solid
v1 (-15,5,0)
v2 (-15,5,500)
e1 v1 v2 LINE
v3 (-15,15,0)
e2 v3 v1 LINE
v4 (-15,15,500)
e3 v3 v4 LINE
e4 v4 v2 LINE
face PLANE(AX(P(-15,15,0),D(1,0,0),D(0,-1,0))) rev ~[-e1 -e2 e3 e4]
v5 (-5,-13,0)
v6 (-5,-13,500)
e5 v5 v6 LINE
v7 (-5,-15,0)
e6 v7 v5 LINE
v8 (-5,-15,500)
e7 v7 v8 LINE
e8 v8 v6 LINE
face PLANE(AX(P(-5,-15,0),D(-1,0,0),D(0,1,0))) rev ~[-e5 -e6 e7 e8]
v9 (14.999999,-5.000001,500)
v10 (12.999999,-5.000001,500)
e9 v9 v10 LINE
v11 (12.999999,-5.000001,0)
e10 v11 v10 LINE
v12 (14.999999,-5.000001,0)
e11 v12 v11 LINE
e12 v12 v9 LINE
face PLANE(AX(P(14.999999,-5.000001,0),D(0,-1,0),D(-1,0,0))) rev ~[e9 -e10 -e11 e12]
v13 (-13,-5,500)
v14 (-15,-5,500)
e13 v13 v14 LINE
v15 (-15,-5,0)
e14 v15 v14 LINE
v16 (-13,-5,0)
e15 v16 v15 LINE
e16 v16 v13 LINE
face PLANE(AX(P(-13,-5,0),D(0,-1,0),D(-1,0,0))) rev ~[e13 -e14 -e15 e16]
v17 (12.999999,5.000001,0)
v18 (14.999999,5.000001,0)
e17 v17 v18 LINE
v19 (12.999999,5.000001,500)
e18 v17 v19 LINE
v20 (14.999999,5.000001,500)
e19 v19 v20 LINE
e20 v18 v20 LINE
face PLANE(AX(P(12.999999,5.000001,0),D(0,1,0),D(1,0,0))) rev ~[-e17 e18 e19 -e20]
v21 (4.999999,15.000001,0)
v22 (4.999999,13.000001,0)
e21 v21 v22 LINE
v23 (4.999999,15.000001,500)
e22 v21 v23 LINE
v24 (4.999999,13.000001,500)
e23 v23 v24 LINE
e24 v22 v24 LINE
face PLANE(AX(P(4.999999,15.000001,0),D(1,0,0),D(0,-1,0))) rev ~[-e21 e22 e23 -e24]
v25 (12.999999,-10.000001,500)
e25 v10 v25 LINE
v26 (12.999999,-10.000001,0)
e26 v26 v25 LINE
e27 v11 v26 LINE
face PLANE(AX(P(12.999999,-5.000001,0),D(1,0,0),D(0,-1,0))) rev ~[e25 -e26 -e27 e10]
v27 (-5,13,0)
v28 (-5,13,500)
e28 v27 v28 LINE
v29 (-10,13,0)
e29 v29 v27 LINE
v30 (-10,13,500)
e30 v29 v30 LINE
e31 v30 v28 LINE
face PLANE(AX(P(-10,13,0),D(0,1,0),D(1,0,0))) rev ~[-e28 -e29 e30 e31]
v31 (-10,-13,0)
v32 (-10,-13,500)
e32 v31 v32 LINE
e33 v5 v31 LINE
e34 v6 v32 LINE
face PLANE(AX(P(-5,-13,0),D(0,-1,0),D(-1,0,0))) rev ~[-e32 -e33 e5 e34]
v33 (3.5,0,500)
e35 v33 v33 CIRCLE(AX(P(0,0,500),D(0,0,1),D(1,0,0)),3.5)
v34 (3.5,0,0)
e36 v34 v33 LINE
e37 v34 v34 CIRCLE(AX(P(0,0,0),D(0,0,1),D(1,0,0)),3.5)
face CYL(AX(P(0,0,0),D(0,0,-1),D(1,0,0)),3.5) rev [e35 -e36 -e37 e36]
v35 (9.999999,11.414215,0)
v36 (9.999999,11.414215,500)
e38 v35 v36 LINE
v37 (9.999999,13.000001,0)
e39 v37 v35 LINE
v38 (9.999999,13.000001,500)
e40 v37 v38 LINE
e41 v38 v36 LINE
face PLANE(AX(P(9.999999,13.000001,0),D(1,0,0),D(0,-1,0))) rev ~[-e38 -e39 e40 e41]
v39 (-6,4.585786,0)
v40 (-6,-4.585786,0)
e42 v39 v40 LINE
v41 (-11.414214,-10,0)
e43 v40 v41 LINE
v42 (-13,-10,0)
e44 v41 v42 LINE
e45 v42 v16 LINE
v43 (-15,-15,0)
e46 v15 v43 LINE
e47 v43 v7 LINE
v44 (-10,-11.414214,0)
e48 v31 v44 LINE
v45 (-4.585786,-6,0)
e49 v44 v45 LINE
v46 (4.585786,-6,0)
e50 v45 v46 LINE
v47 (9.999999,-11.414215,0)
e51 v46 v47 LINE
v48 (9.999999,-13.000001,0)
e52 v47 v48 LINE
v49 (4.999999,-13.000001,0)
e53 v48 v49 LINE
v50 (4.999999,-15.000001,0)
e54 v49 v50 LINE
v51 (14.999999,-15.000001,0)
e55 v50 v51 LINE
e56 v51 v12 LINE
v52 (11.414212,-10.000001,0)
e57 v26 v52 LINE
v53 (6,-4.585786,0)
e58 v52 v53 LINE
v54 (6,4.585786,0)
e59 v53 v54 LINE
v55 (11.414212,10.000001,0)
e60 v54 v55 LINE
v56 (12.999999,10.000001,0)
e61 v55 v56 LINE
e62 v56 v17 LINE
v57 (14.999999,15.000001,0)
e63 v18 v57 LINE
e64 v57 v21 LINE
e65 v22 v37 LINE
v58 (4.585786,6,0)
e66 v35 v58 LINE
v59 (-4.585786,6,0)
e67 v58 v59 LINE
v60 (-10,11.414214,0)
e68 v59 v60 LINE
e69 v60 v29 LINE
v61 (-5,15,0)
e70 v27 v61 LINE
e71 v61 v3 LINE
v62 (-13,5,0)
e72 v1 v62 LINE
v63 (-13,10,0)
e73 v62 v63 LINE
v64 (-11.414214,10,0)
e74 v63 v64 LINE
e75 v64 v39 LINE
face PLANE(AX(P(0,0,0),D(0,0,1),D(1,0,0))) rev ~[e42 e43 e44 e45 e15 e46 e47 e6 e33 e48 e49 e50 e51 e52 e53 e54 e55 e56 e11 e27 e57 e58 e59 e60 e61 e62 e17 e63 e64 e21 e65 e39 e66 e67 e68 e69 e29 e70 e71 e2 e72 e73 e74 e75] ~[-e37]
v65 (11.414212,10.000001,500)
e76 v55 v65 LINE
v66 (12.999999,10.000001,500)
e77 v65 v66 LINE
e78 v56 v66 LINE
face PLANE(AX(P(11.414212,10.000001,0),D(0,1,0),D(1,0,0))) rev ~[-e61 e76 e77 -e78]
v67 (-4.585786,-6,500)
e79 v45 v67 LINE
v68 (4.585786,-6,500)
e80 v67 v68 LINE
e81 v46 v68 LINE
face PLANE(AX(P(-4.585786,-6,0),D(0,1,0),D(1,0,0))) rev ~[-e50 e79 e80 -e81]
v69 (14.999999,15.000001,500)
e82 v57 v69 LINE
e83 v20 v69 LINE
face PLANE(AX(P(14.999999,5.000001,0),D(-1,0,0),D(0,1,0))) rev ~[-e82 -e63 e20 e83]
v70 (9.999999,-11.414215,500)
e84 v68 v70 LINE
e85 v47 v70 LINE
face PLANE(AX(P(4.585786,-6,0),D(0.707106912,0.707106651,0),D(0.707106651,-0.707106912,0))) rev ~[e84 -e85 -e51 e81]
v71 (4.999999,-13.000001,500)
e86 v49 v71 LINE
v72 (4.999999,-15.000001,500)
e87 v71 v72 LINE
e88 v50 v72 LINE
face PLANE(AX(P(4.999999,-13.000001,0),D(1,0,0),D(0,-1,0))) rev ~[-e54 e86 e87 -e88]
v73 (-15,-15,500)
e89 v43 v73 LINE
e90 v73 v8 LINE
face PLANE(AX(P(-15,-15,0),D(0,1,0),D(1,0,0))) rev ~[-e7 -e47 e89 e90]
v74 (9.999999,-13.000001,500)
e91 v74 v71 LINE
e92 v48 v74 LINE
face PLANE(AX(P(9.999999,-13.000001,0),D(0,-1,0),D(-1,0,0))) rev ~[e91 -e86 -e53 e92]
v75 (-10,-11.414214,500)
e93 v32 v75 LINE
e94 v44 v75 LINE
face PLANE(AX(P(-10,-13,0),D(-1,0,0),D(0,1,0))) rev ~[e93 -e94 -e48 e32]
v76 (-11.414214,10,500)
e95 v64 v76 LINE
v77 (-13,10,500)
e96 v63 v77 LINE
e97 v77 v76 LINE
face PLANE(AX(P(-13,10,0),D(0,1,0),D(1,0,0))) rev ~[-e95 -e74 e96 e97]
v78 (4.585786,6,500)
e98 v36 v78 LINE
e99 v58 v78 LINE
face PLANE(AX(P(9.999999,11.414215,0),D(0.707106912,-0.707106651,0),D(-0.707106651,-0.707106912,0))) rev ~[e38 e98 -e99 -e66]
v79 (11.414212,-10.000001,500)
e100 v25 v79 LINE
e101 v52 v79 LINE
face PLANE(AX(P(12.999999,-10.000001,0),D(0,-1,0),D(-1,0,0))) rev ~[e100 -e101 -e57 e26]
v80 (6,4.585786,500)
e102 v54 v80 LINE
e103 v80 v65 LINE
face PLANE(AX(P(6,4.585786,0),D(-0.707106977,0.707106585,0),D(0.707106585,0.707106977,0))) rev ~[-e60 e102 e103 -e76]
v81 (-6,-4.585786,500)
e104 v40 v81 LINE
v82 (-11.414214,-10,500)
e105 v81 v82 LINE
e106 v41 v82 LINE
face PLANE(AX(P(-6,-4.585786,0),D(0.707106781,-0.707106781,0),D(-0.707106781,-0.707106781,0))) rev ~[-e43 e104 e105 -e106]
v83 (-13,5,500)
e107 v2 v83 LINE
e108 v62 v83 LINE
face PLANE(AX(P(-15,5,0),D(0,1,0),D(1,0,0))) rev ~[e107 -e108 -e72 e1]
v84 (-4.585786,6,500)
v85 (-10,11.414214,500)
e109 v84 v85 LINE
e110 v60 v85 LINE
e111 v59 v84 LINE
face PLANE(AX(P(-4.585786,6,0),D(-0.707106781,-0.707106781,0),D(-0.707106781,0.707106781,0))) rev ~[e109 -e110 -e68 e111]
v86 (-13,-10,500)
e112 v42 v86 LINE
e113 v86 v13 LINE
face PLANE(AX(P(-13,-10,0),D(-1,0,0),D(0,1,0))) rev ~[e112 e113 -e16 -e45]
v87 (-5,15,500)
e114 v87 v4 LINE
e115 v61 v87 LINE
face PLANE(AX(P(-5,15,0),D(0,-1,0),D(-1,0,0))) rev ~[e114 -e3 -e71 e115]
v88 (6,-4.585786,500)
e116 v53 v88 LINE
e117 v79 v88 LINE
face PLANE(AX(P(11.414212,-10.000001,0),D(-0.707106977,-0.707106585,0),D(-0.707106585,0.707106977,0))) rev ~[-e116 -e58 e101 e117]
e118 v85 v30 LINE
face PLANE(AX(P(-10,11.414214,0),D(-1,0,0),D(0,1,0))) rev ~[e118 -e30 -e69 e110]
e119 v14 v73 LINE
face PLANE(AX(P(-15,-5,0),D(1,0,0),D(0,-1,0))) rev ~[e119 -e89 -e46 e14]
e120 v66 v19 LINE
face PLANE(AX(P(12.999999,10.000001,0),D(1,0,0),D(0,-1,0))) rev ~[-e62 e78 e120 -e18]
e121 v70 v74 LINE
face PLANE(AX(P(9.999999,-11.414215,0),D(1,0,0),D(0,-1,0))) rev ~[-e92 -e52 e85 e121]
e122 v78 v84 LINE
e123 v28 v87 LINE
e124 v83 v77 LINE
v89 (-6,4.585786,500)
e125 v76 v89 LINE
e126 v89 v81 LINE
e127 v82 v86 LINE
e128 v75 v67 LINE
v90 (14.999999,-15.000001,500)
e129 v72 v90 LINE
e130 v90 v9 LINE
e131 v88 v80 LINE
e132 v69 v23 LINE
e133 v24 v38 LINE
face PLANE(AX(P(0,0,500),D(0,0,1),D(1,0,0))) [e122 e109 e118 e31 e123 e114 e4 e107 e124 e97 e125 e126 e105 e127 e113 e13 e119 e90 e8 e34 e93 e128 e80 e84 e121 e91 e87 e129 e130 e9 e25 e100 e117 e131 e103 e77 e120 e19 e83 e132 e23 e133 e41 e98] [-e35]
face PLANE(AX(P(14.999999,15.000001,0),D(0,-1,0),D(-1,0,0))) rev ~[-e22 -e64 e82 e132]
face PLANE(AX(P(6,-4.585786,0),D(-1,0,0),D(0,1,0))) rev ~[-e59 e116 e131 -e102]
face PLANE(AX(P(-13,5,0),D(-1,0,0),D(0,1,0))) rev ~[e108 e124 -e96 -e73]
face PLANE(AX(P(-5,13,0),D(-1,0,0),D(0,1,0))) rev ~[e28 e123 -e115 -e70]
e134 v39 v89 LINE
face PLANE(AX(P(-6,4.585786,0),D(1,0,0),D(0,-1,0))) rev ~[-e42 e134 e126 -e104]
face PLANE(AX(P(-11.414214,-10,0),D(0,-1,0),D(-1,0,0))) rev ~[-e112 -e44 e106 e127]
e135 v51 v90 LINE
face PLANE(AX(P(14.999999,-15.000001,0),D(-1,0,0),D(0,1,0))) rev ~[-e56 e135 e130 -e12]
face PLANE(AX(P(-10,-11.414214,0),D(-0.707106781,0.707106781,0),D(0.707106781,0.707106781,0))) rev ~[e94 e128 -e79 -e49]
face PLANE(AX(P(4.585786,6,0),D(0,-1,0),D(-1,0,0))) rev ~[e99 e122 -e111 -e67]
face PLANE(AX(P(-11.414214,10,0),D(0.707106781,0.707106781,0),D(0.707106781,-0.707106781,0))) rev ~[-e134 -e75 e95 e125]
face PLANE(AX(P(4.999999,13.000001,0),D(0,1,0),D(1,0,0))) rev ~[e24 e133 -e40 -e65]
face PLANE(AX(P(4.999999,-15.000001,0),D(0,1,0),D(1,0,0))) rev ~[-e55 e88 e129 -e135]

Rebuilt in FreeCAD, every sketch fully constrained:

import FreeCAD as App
import Part
import Sketcher
from FreeCAD import Vector
Q = App.Units.Quantity


def add_polygon(sketch, points):
    """Adds a closed chain of lines whose ends are joined by coincident constraints."""
    first, n = sketch.GeometryCount, len(points)
    for a, b in zip(points, points[1:] + points[:1]):
        sketch.addGeometry(Part.LineSegment(App.Vector(*a, 0), App.Vector(*b, 0)), False)
    for i in range(n):
        sketch.addConstraint(Sketcher.Constraint("Coincident", first + i, 2, first + (i + 1) % n, 1))

doc = App.newDocument("Part")
body = doc.addObject("PartDesign::Body", "Body")

sketch1 = doc.addObject("Sketcher::SketchObject", "Sketch")
body.addObject(sketch1)
sketch1.AttachmentSupport = (doc.XY_Plane, [""])
sketch1.MapMode = "FlatFace"
add_polygon(sketch1, [(4.6, 6), (-4.6, 6), (-10, 11.4), (-10, 13), (-5, 13), (-5, 15), (-15, 15), (-15, 5), (-13, 5), (-13, 10), (-11.4, 10), (-6, 4.6), (-6, -4.6), (-11.4, -10), (-13, -10), (-13, -5), (-15, -5), (-15, -15), (-5, -15), (-5, -13), (-10, -13), (-10, -11.4), (-4.6, -6), (4.6, -6), (10, -11.4), (10, -13), (5, -13), (5, -15), (15, -15), (15, -5), (13, -5), (13, -10), (11.4, -10), (6, -4.6), (6, 4.6), (11.4, 10), (13, 10), (13, 5), (15, 5), (15, 15), (5, 15), (5, 13), (10, 13), (10, 11.4)])
sketch1.addGeometry(Part.Circle(Vector(0, 0, 0), Vector(0, 0, 1), 3.5), False)
sketch1.addConstraint([
    Sketcher.Constraint("Horizontal", 0),
    Sketcher.Constraint("Vertical", 2),
    Sketcher.Constraint("Horizontal", 3),
    Sketcher.Constraint("Vertical", 4),
    Sketcher.Constraint("Horizontal", 5),
    Sketcher.Constraint("Vertical", 6),
    Sketcher.Constraint("Horizontal", 7),
    Sketcher.Constraint("Vertical", 8),
    Sketcher.Constraint("Horizontal", 9),
    Sketcher.Constraint("Vertical", 11),
    Sketcher.Constraint("Horizontal", 13),
    Sketcher.Constraint("Vertical", 14),
    Sketcher.Constraint("Horizontal", 15),
    Sketcher.Constraint("Vertical", 16),
    Sketcher.Constraint("Horizontal", 17),
    Sketcher.Constraint("Vertical", 18),
    Sketcher.Constraint("Horizontal", 19),
    Sketcher.Constraint("Vertical", 20),
    Sketcher.Constraint("Horizontal", 22),
    Sketcher.Constraint("Vertical", 24),
    Sketcher.Constraint("Horizontal", 25),
    Sketcher.Constraint("Vertical", 26),
    Sketcher.Constraint("Horizontal", 27),
    Sketcher.Constraint("Vertical", 28),
    Sketcher.Constraint("Horizontal", 29),
    Sketcher.Constraint("Vertical", 30),
    Sketcher.Constraint("Horizontal", 31),
    Sketcher.Constraint("Vertical", 33),
    Sketcher.Constraint("Horizontal", 35),
    Sketcher.Constraint("Vertical", 36),
    Sketcher.Constraint("Horizontal", 37),
    Sketcher.Constraint("Vertical", 38),
    Sketcher.Constraint("Horizontal", 39),
    Sketcher.Constraint("Vertical", 40),
    Sketcher.Constraint("Horizontal", 41),
    Sketcher.Constraint("Vertical", 42),
    Sketcher.Constraint("Coincident", 44, 3, -1, 1),
    Sketcher.Constraint("Symmetric", 0, 2, 22, 2, -1, 1),
    Sketcher.Constraint("Symmetric", 1, 2, 23, 2, -1, 1),
    Sketcher.Constraint("Symmetric", 3, 2, 25, 2, -1, 1),
    Sketcher.Constraint("Symmetric", 5, 2, 27, 2, -1, 1),
    Sketcher.Constraint("Symmetric", 7, 2, 29, 2, -1, 1),
    Sketcher.Constraint("Symmetric", 9, 2, 31, 2, -1, 1),
    Sketcher.Constraint("Symmetric", 10, 2, 32, 2, -1, 1),
    Sketcher.Constraint("Symmetric", 12, 2, 34, 2, -1, 1),
    Sketcher.Constraint("Symmetric", 14, 2, 36, 2, -1, 1),
    Sketcher.Constraint("Symmetric", 16, 2, 38, 2, -1, 1),
    Sketcher.Constraint("Symmetric", 18, 2, 40, 2, -1, 1),
    Sketcher.Constraint("Symmetric", 20, 2, 42, 2, -1, 1),
    Sketcher.Constraint("Symmetric", 20, 2, 23, 2, -2),
    Sketcher.Constraint("Symmetric", 18, 2, 25, 2, -2),
    Sketcher.Constraint("Symmetric", 16, 2, 27, 2, -2),
    Sketcher.Constraint("Symmetric", 14, 2, 29, 2, -2),
    Sketcher.Constraint("Symmetric", 12, 2, 31, 2, -2),
    Sketcher.Constraint("Parallel", 1, 10),
    Sketcher.Constraint("Perpendicular", 10, 12),
    Sketcher.Constraint("Parallel", 12, 21),
    Sketcher.Constraint("Perpendicular", 32, 34),
    Sketcher.Constraint("Parallel", 34, 43),
    Sketcher.Constraint("Horizontal", 11, 2, 32, 2),
    Sketcher.Constraint("Equal", 35, 2),
    Sketcher.Constraint("Equal", 37, 4),
    Sketcher.Constraint("Equal", 39, 6),
    Sketcher.Constraint("Equal", 41, 8),
    Sketcher.Constraint("Equal", 22, 11),
    Sketcher.Constraint("Equal", 1, 10),
    Sketcher.Constraint("Diameter", 44, Q("7 mm")),
    Sketcher.Constraint("DistanceX", 3, 1, 3, 2, Q("5 mm")),
    Sketcher.Constraint("DistanceX", 5, 2, 5, 1, Q("10 mm")),
    Sketcher.Constraint("DistanceX", 7, 1, 7, 2, Q("2 mm")),
    Sketcher.Constraint("DistanceY", -1, 1, 0, 2, Q("6 mm")),
    Sketcher.Constraint("DistanceX", 1, 2, -1, 1, Q("10 mm")),
    Sketcher.Constraint("DistanceX", 0, 2, 0, 1, Q("9.171572 mm")),
])
pad1 = doc.addObject("PartDesign::Pad", "Pad")
body.addObject(pad1)
pad1.Profile = sketch1
pad1.Length = 500

doc.recompute()
